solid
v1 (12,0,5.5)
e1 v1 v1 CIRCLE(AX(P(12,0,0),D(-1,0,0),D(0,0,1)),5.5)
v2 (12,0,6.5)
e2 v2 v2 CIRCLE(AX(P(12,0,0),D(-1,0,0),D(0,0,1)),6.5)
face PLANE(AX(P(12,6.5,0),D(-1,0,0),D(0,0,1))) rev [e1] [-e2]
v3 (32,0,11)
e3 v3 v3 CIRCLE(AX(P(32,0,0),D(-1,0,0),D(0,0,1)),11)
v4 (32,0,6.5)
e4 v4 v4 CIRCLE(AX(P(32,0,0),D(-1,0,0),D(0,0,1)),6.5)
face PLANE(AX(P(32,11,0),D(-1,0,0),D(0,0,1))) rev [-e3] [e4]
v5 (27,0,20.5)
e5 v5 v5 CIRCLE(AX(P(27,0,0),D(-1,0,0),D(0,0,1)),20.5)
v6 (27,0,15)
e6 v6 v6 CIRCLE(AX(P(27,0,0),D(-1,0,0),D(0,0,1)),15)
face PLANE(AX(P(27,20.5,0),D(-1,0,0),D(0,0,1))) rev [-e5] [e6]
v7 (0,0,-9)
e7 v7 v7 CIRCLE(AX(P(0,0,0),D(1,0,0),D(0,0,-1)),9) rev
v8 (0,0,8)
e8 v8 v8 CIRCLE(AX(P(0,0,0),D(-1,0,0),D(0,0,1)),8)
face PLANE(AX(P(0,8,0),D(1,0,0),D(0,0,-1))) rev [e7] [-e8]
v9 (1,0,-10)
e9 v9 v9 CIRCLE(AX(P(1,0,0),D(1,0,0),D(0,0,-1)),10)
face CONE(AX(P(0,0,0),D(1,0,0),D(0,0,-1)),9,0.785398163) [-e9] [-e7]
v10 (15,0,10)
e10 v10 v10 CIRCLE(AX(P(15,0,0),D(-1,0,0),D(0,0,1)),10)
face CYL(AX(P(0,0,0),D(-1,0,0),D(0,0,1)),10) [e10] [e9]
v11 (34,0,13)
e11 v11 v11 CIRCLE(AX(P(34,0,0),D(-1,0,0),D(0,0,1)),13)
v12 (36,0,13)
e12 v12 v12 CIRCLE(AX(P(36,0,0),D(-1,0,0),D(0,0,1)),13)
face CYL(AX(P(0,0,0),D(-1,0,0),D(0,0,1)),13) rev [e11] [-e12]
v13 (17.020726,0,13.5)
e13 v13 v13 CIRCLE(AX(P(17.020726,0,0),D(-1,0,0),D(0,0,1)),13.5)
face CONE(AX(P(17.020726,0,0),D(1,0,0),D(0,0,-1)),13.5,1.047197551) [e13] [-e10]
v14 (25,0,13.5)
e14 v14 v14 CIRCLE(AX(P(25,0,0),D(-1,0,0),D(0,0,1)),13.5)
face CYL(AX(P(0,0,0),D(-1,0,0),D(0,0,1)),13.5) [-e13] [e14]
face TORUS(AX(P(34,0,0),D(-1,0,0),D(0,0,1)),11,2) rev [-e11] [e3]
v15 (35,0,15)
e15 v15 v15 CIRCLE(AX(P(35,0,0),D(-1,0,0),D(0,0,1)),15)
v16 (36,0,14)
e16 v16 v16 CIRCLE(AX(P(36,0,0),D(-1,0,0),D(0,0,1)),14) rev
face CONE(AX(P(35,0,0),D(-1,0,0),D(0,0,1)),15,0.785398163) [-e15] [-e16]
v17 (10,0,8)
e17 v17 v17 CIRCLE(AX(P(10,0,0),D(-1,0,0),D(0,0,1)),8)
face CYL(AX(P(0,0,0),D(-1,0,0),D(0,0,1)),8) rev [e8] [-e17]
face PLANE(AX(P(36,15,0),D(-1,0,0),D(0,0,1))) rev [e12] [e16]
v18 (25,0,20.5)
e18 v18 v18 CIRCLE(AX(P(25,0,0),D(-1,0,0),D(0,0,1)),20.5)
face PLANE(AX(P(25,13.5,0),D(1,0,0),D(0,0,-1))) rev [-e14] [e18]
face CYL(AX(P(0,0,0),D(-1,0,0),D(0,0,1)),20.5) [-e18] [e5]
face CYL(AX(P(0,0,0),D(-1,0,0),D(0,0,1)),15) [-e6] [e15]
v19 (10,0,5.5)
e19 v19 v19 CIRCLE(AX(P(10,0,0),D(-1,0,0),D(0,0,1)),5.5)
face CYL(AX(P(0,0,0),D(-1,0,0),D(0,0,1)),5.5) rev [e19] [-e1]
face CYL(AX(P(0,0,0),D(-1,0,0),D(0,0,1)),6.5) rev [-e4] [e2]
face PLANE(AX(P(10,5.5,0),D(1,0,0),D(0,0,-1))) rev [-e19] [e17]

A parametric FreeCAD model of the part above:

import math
import FreeCAD as App
import Part
import Sketcher

V = App.Vector
Q = App.Units.Quantity


def edges_at(feature, points):
    """Names of the edges that pass closest to the given points."""
    edges = feature.Shape.Edges
    near = lambda p: min(range(len(edges)), key=lambda i: edges[i].distToShape(Part.Vertex(*p))[0])
    return sorted({f"Edge{near(p) + 1}" for p in points})

doc = App.newDocument("Part")
params = doc.addObject("Spreadsheet::Sheet", "Params")
for row, (alias, value) in enumerate([
    ("sketch1_radius", "2 mm"),
    ("sketch1_width", "10 mm"),
    ("sketch1_width2", "2 mm"),
    ("sketch1_width3", "20 mm"),
    ("sketch1_width4", "9 mm"),
    ("revolution_angle", "360 deg"),
    ("chamfer_size", "1 mm"),
], start=1):
    params.set(f"A{row}", alias)
    params.set(f"B{row}", "=" + value)
    params.setAlias(f"B{row}", alias)

body = doc.addObject("PartDesign::Body", "Body")

# Sketch on XY plane
sketch1 = body.newObject("Sketcher::SketchObject", "Sketch")
sketch1.AttachmentSupport = (doc.getObject("XY_Plane"), [""])
sketch1.MapMode = "FlatFace"
sketch1.addGeometry([
    Part.LineSegment(V(0, 10, 0), V(0, 8, 0)),  # 0
    Part.LineSegment(V(0, 8, 0), V(10, 8, 0)),  # 1
    Part.LineSegment(V(10, 8, 0), V(10, 5.5, 0)),  # 2
    Part.LineSegment(V(10, 5.5, 0), V(12, 5.5, 0)),  # 3
    Part.LineSegment(V(12, 5.5, 0), V(12, 6.5, 0)),  # 4
    Part.LineSegment(V(12, 6.5, 0), V(32, 6.5, 0)),  # 5
    Part.LineSegment(V(32, 6.5, 0), V(32, 11, 0)),  # 6
    Part.ArcOfCircle(Part.Circle(V(34, 11, 0), V(0, 0, 1), 2), math.radians(90), math.radians(180)),  # 7
    Part.LineSegment(V(34, 13, 0), V(36, 13, 0)),  # 8
    Part.LineSegment(V(36, 13, 0), V(36, 15, 0)),  # 9
    Part.LineSegment(V(36, 15, 0), V(27, 15, 0)),  # 10
    Part.LineSegment(V(27, 15, 0), V(27, 20.5, 0)),  # 11
    Part.LineSegment(V(27, 20.5, 0), V(25, 20.5, 0)),  # 12
    Part.LineSegment(V(25, 20.5, 0), V(25, 13.5, 0)),  # 13
    Part.LineSegment(V(25, 13.5, 0), V(17, 13.5, 0)),  # 14
    Part.LineSegment(V(17, 13.5, 0), V(15, 10, 0)),  # 15
    Part.LineSegment(V(15, 10, 0), V(0, 10, 0)),  # 16
], False)
sketch1.addConstraint([
    Sketcher.Constraint("Coincident", 0, 2, 1, 1),
    Sketcher.Constraint("Coincident", 1, 2, 2, 1),
    Sketcher.Constraint("Coincident", 2, 2, 3, 1),
    Sketcher.Constraint("Coincident", 3, 2, 4, 1),
    Sketcher.Constraint("Coincident", 4, 2, 5, 1),
    Sketcher.Constraint("Coincident", 5, 2, 6, 1),
    Sketcher.Constraint("Tangent", 6, 2, 7, 2),
    Sketcher.Constraint("Tangent", 7, 1, 8, 1),
    Sketcher.Constraint("Coincident", 8, 2, 9, 1),
    Sketcher.Constraint("Coincident", 9, 2, 10, 1),
    Sketcher.Constraint("Coincident", 10, 2, 11, 1),
    Sketcher.Constraint("Coincident", 11, 2, 12, 1),
    Sketcher.Constraint("Coincident", 12, 2, 13, 1),
    Sketcher.Constraint("Coincident", 13, 2, 14, 1),
    Sketcher.Constraint("Coincident", 14, 2, 15, 1),
    Sketcher.Constraint("Coincident", 15, 2, 16, 1),
    Sketcher.Constraint("Coincident", 16, 2, 0, 1),
    Sketcher.Constraint("Vertical", 0),
    Sketcher.Constraint("Horizontal", 1),
    Sketcher.Constraint("Vertical", 2),
    Sketcher.Constraint("Horizontal", 3),
    Sketcher.Constraint("Vertical", 4),
    Sketcher.Constraint("Horizontal", 5),
    Sketcher.Constraint("Vertical", 6),
    Sketcher.Constraint("Horizontal", 8),
    Sketcher.Constraint("Vertical", 9),
    Sketcher.Constraint("Horizontal", 10),
    Sketcher.Constraint("Vertical", 11),
    Sketcher.Constraint("Horizontal", 12),
    Sketcher.Constraint("Vertical", 13),
    Sketcher.Constraint("Horizontal", 14),
    Sketcher.Constraint("Horizontal", 16),
    Sketcher.Constraint("PointOnObject", 0, 2, -2),
    Sketcher.Constraint("Equal", 3, 8),
    Sketcher.Constraint("Equal", 8, 12),
    Sketcher.Constraint("Equal", 12, 0),
    Sketcher.Constraint("Equal", 0, 9),
    Sketcher.Constraint("Radius", 7, Q("2 mm")),
    Sketcher.Constraint("DistanceX", 1, 1, 1, 2, Q("10 mm")),
    Sketcher.Constraint("DistanceX", 3, 1, 3, 2, Q("2 mm")),
    Sketcher.Constraint("DistanceX", 5, 1, 5, 2, Q("20 mm")),
    Sketcher.Constraint("DistanceX", 10, 2, 10, 1, Q("9 mm")),
    Sketcher.Constraint("DistanceX", 16, 2, 16, 1, Q("15 mm")),
    Sketcher.Constraint("DistanceY", 4, 1, 4, 2, Q("1 mm")),
    Sketcher.Constraint("DistanceY", 13, 2, 13, 1, Q("7 mm")),
    Sketcher.Constraint("Angle", 15, Q("-120 deg")),
    Sketcher.Constraint("DistanceY", 2, 2, 2, 1, Q("2.5 mm")),
    Sketcher.Constraint("DistanceY", 6, 1, 6, 2, Q("4.5 mm")),
    Sketcher.Constraint("DistanceY", 11, 1, 11, 2, Q("5.5 mm")),
    Sketcher.Constraint("DistanceY", -1, 1, 7, 3, Q("11 mm")),
])
sketch1.setExpression("Constraints[37]", "Params.sketch1_radius")
sketch1.setExpression("Constraints[38]", "Params.sketch1_width")
sketch1.setExpression("Constraints[39]", "Params.sketch1_width2")
sketch1.setExpression("Constraints[40]", "Params.sketch1_width3")
sketch1.setExpression("Constraints[41]", "Params.sketch1_width4")
revolution = body.newObject("PartDesign::Revolution", "Revolution")
revolution.Profile = sketch1
revolution.ReferenceAxis = (sketch1, ["H_Axis"])
revolution.setExpression("Angle", "Params.revolution_angle")
doc.recompute()

chamfer = body.newObject("PartDesign::Chamfer", "Chamfer")
chamfer.Base = (revolution, edges_at(revolution, [(0, 0, -10), (36, 0, -15)]))
chamfer.setExpression("Size", "Params.chamfer_size")

doc.recompute()
